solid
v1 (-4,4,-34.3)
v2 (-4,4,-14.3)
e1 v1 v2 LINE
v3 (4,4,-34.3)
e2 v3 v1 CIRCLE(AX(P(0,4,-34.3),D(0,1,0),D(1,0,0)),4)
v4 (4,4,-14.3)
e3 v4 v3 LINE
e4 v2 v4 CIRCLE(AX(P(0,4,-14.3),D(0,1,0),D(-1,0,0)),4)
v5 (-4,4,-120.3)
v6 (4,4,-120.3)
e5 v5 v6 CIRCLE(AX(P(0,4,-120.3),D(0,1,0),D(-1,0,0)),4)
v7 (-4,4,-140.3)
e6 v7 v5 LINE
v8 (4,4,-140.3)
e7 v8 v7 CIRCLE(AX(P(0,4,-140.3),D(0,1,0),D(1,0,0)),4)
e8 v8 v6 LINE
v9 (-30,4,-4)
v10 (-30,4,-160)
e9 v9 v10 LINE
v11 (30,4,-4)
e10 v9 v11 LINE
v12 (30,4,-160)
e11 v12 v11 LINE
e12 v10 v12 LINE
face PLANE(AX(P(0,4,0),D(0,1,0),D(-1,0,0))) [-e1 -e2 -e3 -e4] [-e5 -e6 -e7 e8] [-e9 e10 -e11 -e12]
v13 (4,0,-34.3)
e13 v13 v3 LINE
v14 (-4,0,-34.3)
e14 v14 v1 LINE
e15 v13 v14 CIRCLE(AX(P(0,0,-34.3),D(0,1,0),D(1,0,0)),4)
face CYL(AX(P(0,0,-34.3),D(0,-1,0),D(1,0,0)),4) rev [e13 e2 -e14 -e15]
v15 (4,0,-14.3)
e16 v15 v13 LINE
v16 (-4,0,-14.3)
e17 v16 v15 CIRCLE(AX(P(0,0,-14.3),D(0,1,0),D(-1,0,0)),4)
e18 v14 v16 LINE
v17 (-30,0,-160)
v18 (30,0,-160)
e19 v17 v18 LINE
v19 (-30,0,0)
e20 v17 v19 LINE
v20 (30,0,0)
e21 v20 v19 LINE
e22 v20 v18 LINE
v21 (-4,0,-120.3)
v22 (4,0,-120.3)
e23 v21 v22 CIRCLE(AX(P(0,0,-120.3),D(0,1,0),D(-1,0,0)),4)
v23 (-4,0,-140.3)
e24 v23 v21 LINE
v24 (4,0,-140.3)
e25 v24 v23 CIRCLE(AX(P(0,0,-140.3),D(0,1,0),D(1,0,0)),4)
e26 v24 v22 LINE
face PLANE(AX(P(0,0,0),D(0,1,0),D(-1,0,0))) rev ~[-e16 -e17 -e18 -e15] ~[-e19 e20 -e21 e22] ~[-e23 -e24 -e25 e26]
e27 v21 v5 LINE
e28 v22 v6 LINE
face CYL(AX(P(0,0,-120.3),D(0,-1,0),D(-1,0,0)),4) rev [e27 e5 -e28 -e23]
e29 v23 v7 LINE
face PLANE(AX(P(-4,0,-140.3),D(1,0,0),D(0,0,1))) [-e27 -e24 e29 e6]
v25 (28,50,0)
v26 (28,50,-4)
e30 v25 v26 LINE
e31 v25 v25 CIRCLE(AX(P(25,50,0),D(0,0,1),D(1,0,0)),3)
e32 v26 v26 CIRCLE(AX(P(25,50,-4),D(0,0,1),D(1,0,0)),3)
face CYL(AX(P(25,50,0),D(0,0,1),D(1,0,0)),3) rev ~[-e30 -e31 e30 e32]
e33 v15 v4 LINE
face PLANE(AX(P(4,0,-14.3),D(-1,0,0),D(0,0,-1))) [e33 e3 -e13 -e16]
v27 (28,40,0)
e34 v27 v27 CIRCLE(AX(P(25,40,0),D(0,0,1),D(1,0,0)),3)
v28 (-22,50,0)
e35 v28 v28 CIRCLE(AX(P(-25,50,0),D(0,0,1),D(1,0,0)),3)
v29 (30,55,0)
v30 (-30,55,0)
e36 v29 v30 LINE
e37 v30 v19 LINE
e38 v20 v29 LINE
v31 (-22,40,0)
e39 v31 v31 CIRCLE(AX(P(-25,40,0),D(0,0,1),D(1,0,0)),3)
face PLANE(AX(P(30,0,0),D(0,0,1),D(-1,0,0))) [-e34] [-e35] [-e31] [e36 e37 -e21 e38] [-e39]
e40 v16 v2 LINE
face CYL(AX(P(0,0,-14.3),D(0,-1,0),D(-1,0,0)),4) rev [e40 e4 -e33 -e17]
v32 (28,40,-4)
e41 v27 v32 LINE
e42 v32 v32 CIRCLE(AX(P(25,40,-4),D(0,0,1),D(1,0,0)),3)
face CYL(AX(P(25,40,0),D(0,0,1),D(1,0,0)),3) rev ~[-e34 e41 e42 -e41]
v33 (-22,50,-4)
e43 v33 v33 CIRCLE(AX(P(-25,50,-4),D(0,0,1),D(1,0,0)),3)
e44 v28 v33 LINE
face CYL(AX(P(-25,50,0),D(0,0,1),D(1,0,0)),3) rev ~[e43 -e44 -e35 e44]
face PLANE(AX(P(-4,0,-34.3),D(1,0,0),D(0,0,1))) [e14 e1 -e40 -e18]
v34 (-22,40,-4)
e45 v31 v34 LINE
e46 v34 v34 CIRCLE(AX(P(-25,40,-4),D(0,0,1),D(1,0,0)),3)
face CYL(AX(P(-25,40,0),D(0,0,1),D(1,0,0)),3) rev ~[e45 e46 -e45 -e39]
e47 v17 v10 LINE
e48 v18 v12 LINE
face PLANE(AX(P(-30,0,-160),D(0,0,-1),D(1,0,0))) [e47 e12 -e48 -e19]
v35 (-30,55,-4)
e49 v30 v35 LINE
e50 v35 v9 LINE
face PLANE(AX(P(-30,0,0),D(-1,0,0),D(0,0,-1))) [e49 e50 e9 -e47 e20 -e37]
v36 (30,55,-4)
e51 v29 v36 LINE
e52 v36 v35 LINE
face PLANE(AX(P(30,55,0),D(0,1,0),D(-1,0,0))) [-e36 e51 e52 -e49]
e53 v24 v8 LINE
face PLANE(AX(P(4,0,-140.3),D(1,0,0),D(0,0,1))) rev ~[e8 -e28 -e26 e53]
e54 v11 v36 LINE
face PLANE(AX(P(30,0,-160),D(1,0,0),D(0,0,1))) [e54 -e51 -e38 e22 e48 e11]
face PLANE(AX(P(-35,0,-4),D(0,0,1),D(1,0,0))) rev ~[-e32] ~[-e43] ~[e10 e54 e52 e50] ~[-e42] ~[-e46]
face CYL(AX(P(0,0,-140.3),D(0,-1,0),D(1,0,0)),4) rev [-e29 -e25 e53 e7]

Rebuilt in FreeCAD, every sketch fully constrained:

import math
import FreeCAD as App
import Part
import Sketcher
Q = App.Units.Quantity

doc = App.newDocument("Part")
body = doc.addObject("PartDesign::Body", "Body")

# Sketch on XZ plane
sketch1 = doc.addObject("Sketcher::SketchObject", "Sketch")
body.addObject(sketch1)
sketch1.AttachmentSupport = (doc.XZ_Plane, [""])
sketch1.MapMode = "FlatFace"
sketch1.addGeometry([
    Part.LineSegment(App.Vector(-30, 0, 0), App.Vector(30, 0, 0)),  # 0
    Part.LineSegment(App.Vector(30, 0, 0), App.Vector(30, -160, 0)),  # 1
    Part.LineSegment(App.Vector(30, -160, 0), App.Vector(-30, -160, 0)),  # 2
    Part.LineSegment(App.Vector(-30, -160, 0), App.Vector(-30, 0, 0)),  # 3
    Part.ArcOfCircle(Part.Circle(App.Vector(0, -140.3, 0), App.Vector(0, 0, 1), 4), math.radians(180), math.radians(360)),  # 4
    Part.LineSegment(App.Vector(4, -140.3, 0), App.Vector(4, -120.3, 0)),  # 5
    Part.ArcOfCircle(Part.Circle(App.Vector(0, -120.3, 0), App.Vector(0, 0, 1), 4), math.radians(0), math.radians(180)),  # 6
    Part.LineSegment(App.Vector(-4, -120.3, 0), App.Vector(-4, -140.3, 0)),  # 7
    Part.LineSegment(App.Vector(-4, -14.3, 0), App.Vector(-4, -34.3, 0)),  # 8
    Part.ArcOfCircle(Part.Circle(App.Vector(0, -34.3, 0), App.Vector(0, 0, 1), 4), math.radians(180), math.radians(360)),  # 9
    Part.LineSegment(App.Vector(4, -34.3, 0), App.Vector(4, -14.3, 0)),  # 10
    Part.ArcOfCircle(Part.Circle(App.Vector(0, -14.3, 0), App.Vector(0, 0, 1), 4), math.radians(0), math.radians(180)),  # 11
], False)
sketch1.addConstraint([
    Sketcher.Constraint("Coincident", 0, 2, 1, 1),
    Sketcher.Constraint("Coincident", 1, 2, 2, 1),
    Sketcher.Constraint("Coincident", 2, 2, 3, 1),
    Sketcher.Constraint("Coincident", 3, 2, 0, 1),
    Sketcher.Constraint("Tangent", 4, 2, 5, 1),
    Sketcher.Constraint("Tangent", 5, 2, 6, 1),
    Sketcher.Constraint("Tangent", 6, 2, 7, 1),
    Sketcher.Constraint("Tangent", 7, 2, 4, 1),
    Sketcher.Constraint("Tangent", 8, 2, 9, 1),
    Sketcher.Constraint("Tangent", 9, 2, 10, 1),
    Sketcher.Constraint("Tangent", 10, 2, 11, 1),
    Sketcher.Constraint("Tangent", 11, 2, 8, 1),
    Sketcher.Constraint("Horizontal", 0),
    Sketcher.Constraint("Vertical", 1),
    Sketcher.Constraint("Horizontal", 2),
    Sketcher.Constraint("Vertical", 3),
    Sketcher.Constraint("Vertical", 5),
    Sketcher.Constraint("Vertical", 7),
    Sketcher.Constraint("Vertical", 8),
    Sketcher.Constraint("Vertical", 10),
    Sketcher.Constraint("Equal", 6, 9),
    Sketcher.Constraint("Symmetric", 0, 2, 3, 2, -1, 1),
    Sketcher.Constraint("PointOnObject", 4, 3, -2),
    Sketcher.Constraint("PointOnObject", 9, 3, -2),
    Sketcher.Constraint("Equal", 7, 8),
    Sketcher.Constraint("Radius", 4, Q("4 mm")),
    Sketcher.Constraint("DistanceX", 0, 1, 0, 2, Q("60 mm")),
    Sketcher.Constraint("DistanceY", 5, 1, 5, 2, Q("20 mm")),
    Sketcher.Constraint("DistanceY", 1, 2, 1, 1, Q("160 mm")),
    Sketcher.Constraint("DistanceY", 6, 3, 9, 3, Q("86 mm")),
    Sketcher.Constraint("DistanceY", 4, 3, -1, 1, Q("140.3 mm")),
])
pad1 = doc.addObject("PartDesign::Pad", "Pad")
body.addObject(pad1)
pad1.Profile = sketch1
pad1.Length = 4
pad1.Reversed = True

# Sketch on XY plane
sketch2 = doc.addObject("Sketcher::SketchObject", "Sketch001")
body.addObject(sketch2)
sketch2.AttachmentSupport = (doc.XY_Plane, [""])
sketch2.MapMode = "FlatFace"
sketch2.addGeometry([
    Part.LineSegment(App.Vector(30, 0, 0), App.Vector(30, 55, 0)),  # 0
    Part.LineSegment(App.Vector(30, 55, 0), App.Vector(-30, 55, 0)),  # 1
    Part.LineSegment(App.Vector(-30, 55, 0), App.Vector(-30, 0, 0)),  # 2
    Part.LineSegment(App.Vector(-30, 0, 0), App.Vector(30, 0, 0)),  # 3
    Part.Circle(App.Vector(-25, 40, 0), App.Vector(0, 0, 1), 3),  # 4
    Part.Circle(App.Vector(-25, 50, 0), App.Vector(0, 0, 1), 3),  # 5
    Part.Circle(App.Vector(25, 40, 0), App.Vector(0, 0, 1), 3),  # 6
    Part.Circle(App.Vector(25, 50, 0), App.Vector(0, 0, 1), 3),  # 7
], False)
sketch2.addConstraint([
    Sketcher.Constraint("Coincident", 0, 2, 1, 1),
    Sketcher.Constraint("Coincident", 1, 2, 2, 1),
    Sketcher.Constraint("Coincident", 2, 2, 3, 1),
    Sketcher.Constraint("Coincident", 3, 2, 0, 1),
    Sketcher.Constraint("Vertical", 0),
    Sketcher.Constraint("Horizontal", 1),
    Sketcher.Constraint("Vertical", 2),
    Sketcher.Constraint("Horizontal", 3),
    Sketcher.Constraint("Equal", 4, 5),
    Sketcher.Constraint("Equal", 5, 6),
    Sketcher.Constraint("Equal", 6, 7),
    Sketcher.Constraint("Symmetric", 2, 2, 3, 2, -1, 1),
    Sketcher.Constraint("Symmetric", 4, 3, 6, 3, -2),
    Sketcher.Constraint("Symmetric", 5, 3, 7, 3, -2),
    Sketcher.Constraint("Vertical", 4, 3, 5, 3),
    Sketcher.Constraint("Diameter", 4, Q("6 mm")),
    Sketcher.Constraint("DistanceX", 1, 2, 1, 1, Q("60 mm")),
    Sketcher.Constraint("DistanceY", 0, 1, 0, 2, Q("55 mm")),
    Sketcher.Constraint("DistanceX", 4, 3, -1, 1, Q("25 mm")),
    Sketcher.Constraint("DistanceY", -1, 1, 4, 3, Q("40 mm")),
    Sketcher.Constraint("DistanceY", -1, 1, 5, 3, Q("50 mm")),
])
pad2 = doc.addObject("PartDesign::Pad", "Pad001")
body.addObject(pad2)
pad2.Profile = sketch2
pad2.Length = 4
pad2.Reversed = True

doc.recompute()
